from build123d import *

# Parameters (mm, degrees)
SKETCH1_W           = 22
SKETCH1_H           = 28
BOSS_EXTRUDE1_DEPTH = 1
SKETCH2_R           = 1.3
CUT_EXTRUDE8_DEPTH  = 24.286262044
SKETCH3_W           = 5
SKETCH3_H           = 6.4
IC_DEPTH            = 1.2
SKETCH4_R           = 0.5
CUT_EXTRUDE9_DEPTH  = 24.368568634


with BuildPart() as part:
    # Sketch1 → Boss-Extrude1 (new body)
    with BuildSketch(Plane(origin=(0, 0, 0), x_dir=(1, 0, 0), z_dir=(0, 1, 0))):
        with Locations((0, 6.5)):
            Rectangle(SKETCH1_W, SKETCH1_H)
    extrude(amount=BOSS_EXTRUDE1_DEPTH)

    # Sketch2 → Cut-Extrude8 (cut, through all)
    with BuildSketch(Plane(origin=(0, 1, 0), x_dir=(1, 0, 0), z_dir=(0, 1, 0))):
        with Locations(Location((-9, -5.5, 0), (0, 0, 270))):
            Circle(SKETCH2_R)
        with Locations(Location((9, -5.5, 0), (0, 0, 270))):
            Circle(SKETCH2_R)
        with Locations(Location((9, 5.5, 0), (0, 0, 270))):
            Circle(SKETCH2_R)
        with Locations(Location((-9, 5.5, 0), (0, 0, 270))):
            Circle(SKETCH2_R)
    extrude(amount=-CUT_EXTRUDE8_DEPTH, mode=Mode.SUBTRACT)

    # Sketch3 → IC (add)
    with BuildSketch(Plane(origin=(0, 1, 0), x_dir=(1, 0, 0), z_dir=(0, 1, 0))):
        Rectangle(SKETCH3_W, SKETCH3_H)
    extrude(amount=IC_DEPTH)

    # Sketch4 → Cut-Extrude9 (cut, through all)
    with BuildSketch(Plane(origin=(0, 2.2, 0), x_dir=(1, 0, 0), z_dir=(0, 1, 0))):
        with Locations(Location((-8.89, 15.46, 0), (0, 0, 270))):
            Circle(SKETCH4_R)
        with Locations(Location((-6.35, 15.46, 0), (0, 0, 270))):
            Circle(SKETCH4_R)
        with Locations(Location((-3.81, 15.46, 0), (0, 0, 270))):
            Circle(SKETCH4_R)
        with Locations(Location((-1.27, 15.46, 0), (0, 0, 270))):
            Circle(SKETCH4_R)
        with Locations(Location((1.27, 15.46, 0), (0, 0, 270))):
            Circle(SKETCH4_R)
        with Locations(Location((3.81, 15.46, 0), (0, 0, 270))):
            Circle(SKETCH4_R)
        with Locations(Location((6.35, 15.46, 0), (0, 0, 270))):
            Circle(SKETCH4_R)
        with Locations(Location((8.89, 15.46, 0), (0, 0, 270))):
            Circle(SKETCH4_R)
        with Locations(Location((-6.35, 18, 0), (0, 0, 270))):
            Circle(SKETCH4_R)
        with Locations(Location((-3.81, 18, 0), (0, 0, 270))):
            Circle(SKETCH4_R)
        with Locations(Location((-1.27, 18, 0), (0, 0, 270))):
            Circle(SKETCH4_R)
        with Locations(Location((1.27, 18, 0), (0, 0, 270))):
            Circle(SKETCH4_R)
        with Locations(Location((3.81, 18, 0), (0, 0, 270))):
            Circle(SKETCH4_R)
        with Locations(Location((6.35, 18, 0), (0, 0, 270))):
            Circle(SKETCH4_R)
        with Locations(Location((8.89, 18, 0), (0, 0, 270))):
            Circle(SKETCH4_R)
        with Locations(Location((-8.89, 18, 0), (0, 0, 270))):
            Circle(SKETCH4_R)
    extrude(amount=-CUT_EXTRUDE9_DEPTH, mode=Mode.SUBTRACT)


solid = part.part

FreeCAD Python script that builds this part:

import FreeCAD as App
import Part
import Sketcher

V = App.Vector


def add_polygon(sketch, points):
    """Adds a closed chain of lines whose ends are joined by coincident constraints."""
    first, n = sketch.GeometryCount, len(points)
    for a, b in zip(points, points[1:] + points[:1]):
        sketch.addGeometry(Part.LineSegment(App.Vector(*a, 0), App.Vector(*b, 0)), False)
    for i in range(n):
        sketch.addConstraint(Sketcher.Constraint("Coincident", first + i, 2, first + (i + 1) % n, 1))

doc = App.newDocument("Part")
body = doc.addObject("PartDesign::Body", "Body")

# Sketch on XZ plane
sketch1 = body.newObject("Sketcher::SketchObject", "Sketch")
sketch1.AttachmentSupport = (doc.getObject("XZ_Plane"), [""])
sketch1.MapMode = "FlatFace"
add_polygon(sketch1, [(-11, -20.5), (-11, 7.5), (11, 7.5), (11, -20.5)])  # lines 0-3
sketch1.addConstraint([
    Sketcher.Constraint("Vertical", 0),
    Sketcher.Constraint("Horizontal", 1),
    Sketcher.Constraint("Vertical", 2),
    Sketcher.Constraint("Horizontal", 3),
    Sketcher.Constraint("DistanceX", 1, 1, 1, 2, 22.0),
    Sketcher.Constraint("DistanceY", 0, 1, 0, 2, 28.0),
    Sketcher.Constraint("DistanceX", 0, 2, -1, 1, 11.0),
    Sketcher.Constraint("DistanceY", -1, 1, 0, 2, 7.5),
])
pad1 = body.newObject("PartDesign::Pad", "Pad")
pad1.Profile = sketch1
pad1.Length = 1
pad1.Reversed = True

# Sketch on XZ plane
sketch2 = body.newObject("Sketcher::SketchObject", "Sketch001")
sketch2.AttachmentSupport = (doc.getObject("XZ_Plane"), [""])
sketch2.MapMode = "FlatFace"
sketch2.AttachmentOffset = App.Placement(V(0, 0, -1), App.Rotation())
sketch2.addGeometry([
    Part.Circle(V(-9, 5.5, 0), V(0, 0, 1), 1.3),
    Part.Circle(V(9, 5.5, 0), V(0, 0, 1), 1.3),
    Part.Circle(V(9, -5.5, 0), V(0, 0, 1), 1.3),
    Part.Circle(V(-9, -5.5, 0), V(0, 0, 1), 1.3),
], False)
sketch2.addConstraint([
    Sketcher.Constraint("Equal", 0, 1),
    Sketcher.Constraint("Equal", 1, 2),
    Sketcher.Constraint("Equal", 2, 3),
    Sketcher.Constraint("Symmetric", 0, 3, 2, 3, -1, 1),
    Sketcher.Constraint("Symmetric", 1, 3, 3, 3, -1, 1),
    Sketcher.Constraint("Symmetric", 0, 3, 1, 3, -2),
    Sketcher.Constraint("Diameter", 0, 2.6),
    Sketcher.Constraint("DistanceX", 0, 3, -1, 1, 9.0),
    Sketcher.Constraint("DistanceY", 2, 3, 1, 3, 11.0),
])
pocket1 = body.newObject("PartDesign::Pocket", "Pocket")
pocket1.Profile = sketch2
pocket1.Type = "ThroughAll"
pocket1.Reversed = True

# Sketch on XZ plane
sketch3 = body.newObject("Sketcher::SketchObject", "Sketch002")
sketch3.AttachmentSupport = (doc.getObject("XZ_Plane"), [""])
sketch3.MapMode = "FlatFace"
sketch3.AttachmentOffset = App.Placement(V(0, 0, -1), App.Rotation())
add_polygon(sketch3, [(-2.5, -3.2), (-2.5, 3.2), (2.5, 3.2), (2.5, -3.2)])  # lines 0-3
sketch3.addConstraint([
    Sketcher.Constraint("Vertical", 0),
    Sketcher.Constraint("Horizontal", 1),
    Sketcher.Constraint("Vertical", 2),
    Sketcher.Constraint("Horizontal", 3),
    Sketcher.Constraint("Symmetric", 0, 2, 2, 2, -1, 1),
    Sketcher.Constraint("DistanceX", 1, 1, 1, 2, 5.0),
    Sketcher.Constraint("DistanceY", 0, 1, 0, 2, 6.4),
])
pad2 = body.newObject("PartDesign::Pad", "Pad001")
pad2.Profile = sketch3
pad2.Length = 1.2
pad2.Reversed = True

# Sketch on XZ plane
sketch4 = body.newObject("Sketcher::SketchObject", "Sketch003")
sketch4.AttachmentSupport = (doc.getObject("XZ_Plane"), [""])
sketch4.MapMode = "FlatFace"
sketch4.AttachmentOffset = App.Placement(V(0, 0, -2.2), App.Rotation())
sketch4.addGeometry([
    Part.Circle(V(-8.89, -15.46, 0), V(0, 0, 1), 0.5),  # 0
    Part.Circle(V(-6.35, -15.46, 0), V(0, 0, 1), 0.5),  # 1
    Part.Circle(V(-3.81, -15.46, 0), V(0, 0, 1), 0.5),  # 2
    Part.Circle(V(-1.27, -15.46, 0), V(0, 0, 1), 0.5),  # 3
    Part.Circle(V(1.27, -15.46, 0), V(0, 0, 1), 0.5),  # 4
    Part.Circle(V(3.81, -15.46, 0), V(0, 0, 1), 0.5),  # 5
    Part.Circle(V(6.35, -15.46, 0), V(0, 0, 1), 0.5),  # 6
    Part.Circle(V(8.89, -15.46, 0), V(0, 0, 1), 0.5),  # 7
    Part.Circle(V(-6.35, -18, 0), V(0, 0, 1), 0.5),  # 8
    Part.Circle(V(-3.81, -18, 0), V(0, 0, 1), 0.5),  # 9
    Part.Circle(V(-1.27, -18, 0), V(0, 0, 1), 0.5),  # 10
    Part.Circle(V(1.27, -18, 0), V(0, 0, 1), 0.5),  # 11
    Part.Circle(V(3.81, -18, 0), V(0, 0, 1), 0.5),  # 12
    Part.Circle(V(6.35, -18, 0), V(0, 0, 1), 0.5),  # 13
    Part.Circle(V(8.89, -18, 0), V(0, 0, 1), 0.5),  # 14
    Part.Circle(V(-8.89, -18, 0), V(0, 0, 1), 0.5),  # 15
], False)
sketch4.addConstraint([
    Sketcher.Constraint("Equal", 0, 1),
    Sketcher.Constraint("Equal", 1, 2),
    Sketcher.Constraint("Equal", 2, 3),
    Sketcher.Constraint("Equal", 3, 4),
    Sketcher.Constraint("Equal", 4, 5),
    Sketcher.Constraint("Equal", 5, 6),
    Sketcher.Constraint("Equal", 6, 7),
    Sketcher.Constraint("Equal", 7, 8),
    Sketcher.Constraint("Equal", 8, 9),
    Sketcher.Constraint("Equal", 9, 10),
    Sketcher.Constraint("Equal", 10, 11),
    Sketcher.Constraint("Equal", 11, 12),
    Sketcher.Constraint("Equal", 12, 13),
    Sketcher.Constraint("Equal", 13, 14),
    Sketcher.Constraint("Equal", 14, 15),
    Sketcher.Constraint("Symmetric", 3, 3, 4, 3, -2),
    Sketcher.Constraint("Symmetric", 2, 3, 5, 3, -2),
    Sketcher.Constraint("Symmetric", 1, 3, 6, 3, -2),
    Sketcher.Constraint("Symmetric", 0, 3, 7, 3, -2),
    Sketcher.Constraint("Symmetric", 10, 3, 11, 3, -2),
    Sketcher.Constraint("Symmetric", 9, 3, 12, 3, -2),
    Sketcher.Constraint("Symmetric", 8, 3, 13, 3, -2),
    Sketcher.Constraint("Symmetric", 14, 3, 15, 3, -2),
    Sketcher.Constraint("Horizontal", 0, 3, 1, 3),
    Sketcher.Constraint("Horizontal", 1, 3, 2, 3),
    Sketcher.Constraint("Horizontal", 2, 3, 3, 3),
    Sketcher.Constraint("Horizontal", 8, 3, 9, 3),
    Sketcher.Constraint("Horizontal", 9, 3, 10, 3),
    Sketcher.Constraint("Horizontal", 13, 3, 14, 3),
    Sketcher.Constraint("Vertical", 1, 3, 8, 3),
    Sketcher.Constraint("Vertical", 2, 3, 9, 3),
    Sketcher.Constraint("Vertical", 3, 3, 10, 3),
    Sketcher.Constraint("Vertical", 7, 3, 14, 3),
    Sketcher.Constraint("Diameter", 0, 1.0),
    Sketcher.Constraint("DistanceY", 8, 3, -1, 1, 18.0),
    Sketcher.Constraint("DistanceX", 0, 3, 5, 3, 12.7),
    Sketcher.Constraint("DistanceX", 1, 3, 6, 3, 12.7),
    Sketcher.Constraint("DistanceX", 0, 3, -1, 1, 8.89),
    Sketcher.Constraint("DistanceY", 0, 3, -1, 1, 15.46),
    Sketcher.Constraint("DistanceX", 3, 3, -1, 1, 1.27),
])
pocket2 = body.newObject("PartDesign::Pocket", "Pocket001")
pocket2.Profile = sketch4
pocket2.Type = "ThroughAll"
pocket2.Reversed = True

doc.recompute()
